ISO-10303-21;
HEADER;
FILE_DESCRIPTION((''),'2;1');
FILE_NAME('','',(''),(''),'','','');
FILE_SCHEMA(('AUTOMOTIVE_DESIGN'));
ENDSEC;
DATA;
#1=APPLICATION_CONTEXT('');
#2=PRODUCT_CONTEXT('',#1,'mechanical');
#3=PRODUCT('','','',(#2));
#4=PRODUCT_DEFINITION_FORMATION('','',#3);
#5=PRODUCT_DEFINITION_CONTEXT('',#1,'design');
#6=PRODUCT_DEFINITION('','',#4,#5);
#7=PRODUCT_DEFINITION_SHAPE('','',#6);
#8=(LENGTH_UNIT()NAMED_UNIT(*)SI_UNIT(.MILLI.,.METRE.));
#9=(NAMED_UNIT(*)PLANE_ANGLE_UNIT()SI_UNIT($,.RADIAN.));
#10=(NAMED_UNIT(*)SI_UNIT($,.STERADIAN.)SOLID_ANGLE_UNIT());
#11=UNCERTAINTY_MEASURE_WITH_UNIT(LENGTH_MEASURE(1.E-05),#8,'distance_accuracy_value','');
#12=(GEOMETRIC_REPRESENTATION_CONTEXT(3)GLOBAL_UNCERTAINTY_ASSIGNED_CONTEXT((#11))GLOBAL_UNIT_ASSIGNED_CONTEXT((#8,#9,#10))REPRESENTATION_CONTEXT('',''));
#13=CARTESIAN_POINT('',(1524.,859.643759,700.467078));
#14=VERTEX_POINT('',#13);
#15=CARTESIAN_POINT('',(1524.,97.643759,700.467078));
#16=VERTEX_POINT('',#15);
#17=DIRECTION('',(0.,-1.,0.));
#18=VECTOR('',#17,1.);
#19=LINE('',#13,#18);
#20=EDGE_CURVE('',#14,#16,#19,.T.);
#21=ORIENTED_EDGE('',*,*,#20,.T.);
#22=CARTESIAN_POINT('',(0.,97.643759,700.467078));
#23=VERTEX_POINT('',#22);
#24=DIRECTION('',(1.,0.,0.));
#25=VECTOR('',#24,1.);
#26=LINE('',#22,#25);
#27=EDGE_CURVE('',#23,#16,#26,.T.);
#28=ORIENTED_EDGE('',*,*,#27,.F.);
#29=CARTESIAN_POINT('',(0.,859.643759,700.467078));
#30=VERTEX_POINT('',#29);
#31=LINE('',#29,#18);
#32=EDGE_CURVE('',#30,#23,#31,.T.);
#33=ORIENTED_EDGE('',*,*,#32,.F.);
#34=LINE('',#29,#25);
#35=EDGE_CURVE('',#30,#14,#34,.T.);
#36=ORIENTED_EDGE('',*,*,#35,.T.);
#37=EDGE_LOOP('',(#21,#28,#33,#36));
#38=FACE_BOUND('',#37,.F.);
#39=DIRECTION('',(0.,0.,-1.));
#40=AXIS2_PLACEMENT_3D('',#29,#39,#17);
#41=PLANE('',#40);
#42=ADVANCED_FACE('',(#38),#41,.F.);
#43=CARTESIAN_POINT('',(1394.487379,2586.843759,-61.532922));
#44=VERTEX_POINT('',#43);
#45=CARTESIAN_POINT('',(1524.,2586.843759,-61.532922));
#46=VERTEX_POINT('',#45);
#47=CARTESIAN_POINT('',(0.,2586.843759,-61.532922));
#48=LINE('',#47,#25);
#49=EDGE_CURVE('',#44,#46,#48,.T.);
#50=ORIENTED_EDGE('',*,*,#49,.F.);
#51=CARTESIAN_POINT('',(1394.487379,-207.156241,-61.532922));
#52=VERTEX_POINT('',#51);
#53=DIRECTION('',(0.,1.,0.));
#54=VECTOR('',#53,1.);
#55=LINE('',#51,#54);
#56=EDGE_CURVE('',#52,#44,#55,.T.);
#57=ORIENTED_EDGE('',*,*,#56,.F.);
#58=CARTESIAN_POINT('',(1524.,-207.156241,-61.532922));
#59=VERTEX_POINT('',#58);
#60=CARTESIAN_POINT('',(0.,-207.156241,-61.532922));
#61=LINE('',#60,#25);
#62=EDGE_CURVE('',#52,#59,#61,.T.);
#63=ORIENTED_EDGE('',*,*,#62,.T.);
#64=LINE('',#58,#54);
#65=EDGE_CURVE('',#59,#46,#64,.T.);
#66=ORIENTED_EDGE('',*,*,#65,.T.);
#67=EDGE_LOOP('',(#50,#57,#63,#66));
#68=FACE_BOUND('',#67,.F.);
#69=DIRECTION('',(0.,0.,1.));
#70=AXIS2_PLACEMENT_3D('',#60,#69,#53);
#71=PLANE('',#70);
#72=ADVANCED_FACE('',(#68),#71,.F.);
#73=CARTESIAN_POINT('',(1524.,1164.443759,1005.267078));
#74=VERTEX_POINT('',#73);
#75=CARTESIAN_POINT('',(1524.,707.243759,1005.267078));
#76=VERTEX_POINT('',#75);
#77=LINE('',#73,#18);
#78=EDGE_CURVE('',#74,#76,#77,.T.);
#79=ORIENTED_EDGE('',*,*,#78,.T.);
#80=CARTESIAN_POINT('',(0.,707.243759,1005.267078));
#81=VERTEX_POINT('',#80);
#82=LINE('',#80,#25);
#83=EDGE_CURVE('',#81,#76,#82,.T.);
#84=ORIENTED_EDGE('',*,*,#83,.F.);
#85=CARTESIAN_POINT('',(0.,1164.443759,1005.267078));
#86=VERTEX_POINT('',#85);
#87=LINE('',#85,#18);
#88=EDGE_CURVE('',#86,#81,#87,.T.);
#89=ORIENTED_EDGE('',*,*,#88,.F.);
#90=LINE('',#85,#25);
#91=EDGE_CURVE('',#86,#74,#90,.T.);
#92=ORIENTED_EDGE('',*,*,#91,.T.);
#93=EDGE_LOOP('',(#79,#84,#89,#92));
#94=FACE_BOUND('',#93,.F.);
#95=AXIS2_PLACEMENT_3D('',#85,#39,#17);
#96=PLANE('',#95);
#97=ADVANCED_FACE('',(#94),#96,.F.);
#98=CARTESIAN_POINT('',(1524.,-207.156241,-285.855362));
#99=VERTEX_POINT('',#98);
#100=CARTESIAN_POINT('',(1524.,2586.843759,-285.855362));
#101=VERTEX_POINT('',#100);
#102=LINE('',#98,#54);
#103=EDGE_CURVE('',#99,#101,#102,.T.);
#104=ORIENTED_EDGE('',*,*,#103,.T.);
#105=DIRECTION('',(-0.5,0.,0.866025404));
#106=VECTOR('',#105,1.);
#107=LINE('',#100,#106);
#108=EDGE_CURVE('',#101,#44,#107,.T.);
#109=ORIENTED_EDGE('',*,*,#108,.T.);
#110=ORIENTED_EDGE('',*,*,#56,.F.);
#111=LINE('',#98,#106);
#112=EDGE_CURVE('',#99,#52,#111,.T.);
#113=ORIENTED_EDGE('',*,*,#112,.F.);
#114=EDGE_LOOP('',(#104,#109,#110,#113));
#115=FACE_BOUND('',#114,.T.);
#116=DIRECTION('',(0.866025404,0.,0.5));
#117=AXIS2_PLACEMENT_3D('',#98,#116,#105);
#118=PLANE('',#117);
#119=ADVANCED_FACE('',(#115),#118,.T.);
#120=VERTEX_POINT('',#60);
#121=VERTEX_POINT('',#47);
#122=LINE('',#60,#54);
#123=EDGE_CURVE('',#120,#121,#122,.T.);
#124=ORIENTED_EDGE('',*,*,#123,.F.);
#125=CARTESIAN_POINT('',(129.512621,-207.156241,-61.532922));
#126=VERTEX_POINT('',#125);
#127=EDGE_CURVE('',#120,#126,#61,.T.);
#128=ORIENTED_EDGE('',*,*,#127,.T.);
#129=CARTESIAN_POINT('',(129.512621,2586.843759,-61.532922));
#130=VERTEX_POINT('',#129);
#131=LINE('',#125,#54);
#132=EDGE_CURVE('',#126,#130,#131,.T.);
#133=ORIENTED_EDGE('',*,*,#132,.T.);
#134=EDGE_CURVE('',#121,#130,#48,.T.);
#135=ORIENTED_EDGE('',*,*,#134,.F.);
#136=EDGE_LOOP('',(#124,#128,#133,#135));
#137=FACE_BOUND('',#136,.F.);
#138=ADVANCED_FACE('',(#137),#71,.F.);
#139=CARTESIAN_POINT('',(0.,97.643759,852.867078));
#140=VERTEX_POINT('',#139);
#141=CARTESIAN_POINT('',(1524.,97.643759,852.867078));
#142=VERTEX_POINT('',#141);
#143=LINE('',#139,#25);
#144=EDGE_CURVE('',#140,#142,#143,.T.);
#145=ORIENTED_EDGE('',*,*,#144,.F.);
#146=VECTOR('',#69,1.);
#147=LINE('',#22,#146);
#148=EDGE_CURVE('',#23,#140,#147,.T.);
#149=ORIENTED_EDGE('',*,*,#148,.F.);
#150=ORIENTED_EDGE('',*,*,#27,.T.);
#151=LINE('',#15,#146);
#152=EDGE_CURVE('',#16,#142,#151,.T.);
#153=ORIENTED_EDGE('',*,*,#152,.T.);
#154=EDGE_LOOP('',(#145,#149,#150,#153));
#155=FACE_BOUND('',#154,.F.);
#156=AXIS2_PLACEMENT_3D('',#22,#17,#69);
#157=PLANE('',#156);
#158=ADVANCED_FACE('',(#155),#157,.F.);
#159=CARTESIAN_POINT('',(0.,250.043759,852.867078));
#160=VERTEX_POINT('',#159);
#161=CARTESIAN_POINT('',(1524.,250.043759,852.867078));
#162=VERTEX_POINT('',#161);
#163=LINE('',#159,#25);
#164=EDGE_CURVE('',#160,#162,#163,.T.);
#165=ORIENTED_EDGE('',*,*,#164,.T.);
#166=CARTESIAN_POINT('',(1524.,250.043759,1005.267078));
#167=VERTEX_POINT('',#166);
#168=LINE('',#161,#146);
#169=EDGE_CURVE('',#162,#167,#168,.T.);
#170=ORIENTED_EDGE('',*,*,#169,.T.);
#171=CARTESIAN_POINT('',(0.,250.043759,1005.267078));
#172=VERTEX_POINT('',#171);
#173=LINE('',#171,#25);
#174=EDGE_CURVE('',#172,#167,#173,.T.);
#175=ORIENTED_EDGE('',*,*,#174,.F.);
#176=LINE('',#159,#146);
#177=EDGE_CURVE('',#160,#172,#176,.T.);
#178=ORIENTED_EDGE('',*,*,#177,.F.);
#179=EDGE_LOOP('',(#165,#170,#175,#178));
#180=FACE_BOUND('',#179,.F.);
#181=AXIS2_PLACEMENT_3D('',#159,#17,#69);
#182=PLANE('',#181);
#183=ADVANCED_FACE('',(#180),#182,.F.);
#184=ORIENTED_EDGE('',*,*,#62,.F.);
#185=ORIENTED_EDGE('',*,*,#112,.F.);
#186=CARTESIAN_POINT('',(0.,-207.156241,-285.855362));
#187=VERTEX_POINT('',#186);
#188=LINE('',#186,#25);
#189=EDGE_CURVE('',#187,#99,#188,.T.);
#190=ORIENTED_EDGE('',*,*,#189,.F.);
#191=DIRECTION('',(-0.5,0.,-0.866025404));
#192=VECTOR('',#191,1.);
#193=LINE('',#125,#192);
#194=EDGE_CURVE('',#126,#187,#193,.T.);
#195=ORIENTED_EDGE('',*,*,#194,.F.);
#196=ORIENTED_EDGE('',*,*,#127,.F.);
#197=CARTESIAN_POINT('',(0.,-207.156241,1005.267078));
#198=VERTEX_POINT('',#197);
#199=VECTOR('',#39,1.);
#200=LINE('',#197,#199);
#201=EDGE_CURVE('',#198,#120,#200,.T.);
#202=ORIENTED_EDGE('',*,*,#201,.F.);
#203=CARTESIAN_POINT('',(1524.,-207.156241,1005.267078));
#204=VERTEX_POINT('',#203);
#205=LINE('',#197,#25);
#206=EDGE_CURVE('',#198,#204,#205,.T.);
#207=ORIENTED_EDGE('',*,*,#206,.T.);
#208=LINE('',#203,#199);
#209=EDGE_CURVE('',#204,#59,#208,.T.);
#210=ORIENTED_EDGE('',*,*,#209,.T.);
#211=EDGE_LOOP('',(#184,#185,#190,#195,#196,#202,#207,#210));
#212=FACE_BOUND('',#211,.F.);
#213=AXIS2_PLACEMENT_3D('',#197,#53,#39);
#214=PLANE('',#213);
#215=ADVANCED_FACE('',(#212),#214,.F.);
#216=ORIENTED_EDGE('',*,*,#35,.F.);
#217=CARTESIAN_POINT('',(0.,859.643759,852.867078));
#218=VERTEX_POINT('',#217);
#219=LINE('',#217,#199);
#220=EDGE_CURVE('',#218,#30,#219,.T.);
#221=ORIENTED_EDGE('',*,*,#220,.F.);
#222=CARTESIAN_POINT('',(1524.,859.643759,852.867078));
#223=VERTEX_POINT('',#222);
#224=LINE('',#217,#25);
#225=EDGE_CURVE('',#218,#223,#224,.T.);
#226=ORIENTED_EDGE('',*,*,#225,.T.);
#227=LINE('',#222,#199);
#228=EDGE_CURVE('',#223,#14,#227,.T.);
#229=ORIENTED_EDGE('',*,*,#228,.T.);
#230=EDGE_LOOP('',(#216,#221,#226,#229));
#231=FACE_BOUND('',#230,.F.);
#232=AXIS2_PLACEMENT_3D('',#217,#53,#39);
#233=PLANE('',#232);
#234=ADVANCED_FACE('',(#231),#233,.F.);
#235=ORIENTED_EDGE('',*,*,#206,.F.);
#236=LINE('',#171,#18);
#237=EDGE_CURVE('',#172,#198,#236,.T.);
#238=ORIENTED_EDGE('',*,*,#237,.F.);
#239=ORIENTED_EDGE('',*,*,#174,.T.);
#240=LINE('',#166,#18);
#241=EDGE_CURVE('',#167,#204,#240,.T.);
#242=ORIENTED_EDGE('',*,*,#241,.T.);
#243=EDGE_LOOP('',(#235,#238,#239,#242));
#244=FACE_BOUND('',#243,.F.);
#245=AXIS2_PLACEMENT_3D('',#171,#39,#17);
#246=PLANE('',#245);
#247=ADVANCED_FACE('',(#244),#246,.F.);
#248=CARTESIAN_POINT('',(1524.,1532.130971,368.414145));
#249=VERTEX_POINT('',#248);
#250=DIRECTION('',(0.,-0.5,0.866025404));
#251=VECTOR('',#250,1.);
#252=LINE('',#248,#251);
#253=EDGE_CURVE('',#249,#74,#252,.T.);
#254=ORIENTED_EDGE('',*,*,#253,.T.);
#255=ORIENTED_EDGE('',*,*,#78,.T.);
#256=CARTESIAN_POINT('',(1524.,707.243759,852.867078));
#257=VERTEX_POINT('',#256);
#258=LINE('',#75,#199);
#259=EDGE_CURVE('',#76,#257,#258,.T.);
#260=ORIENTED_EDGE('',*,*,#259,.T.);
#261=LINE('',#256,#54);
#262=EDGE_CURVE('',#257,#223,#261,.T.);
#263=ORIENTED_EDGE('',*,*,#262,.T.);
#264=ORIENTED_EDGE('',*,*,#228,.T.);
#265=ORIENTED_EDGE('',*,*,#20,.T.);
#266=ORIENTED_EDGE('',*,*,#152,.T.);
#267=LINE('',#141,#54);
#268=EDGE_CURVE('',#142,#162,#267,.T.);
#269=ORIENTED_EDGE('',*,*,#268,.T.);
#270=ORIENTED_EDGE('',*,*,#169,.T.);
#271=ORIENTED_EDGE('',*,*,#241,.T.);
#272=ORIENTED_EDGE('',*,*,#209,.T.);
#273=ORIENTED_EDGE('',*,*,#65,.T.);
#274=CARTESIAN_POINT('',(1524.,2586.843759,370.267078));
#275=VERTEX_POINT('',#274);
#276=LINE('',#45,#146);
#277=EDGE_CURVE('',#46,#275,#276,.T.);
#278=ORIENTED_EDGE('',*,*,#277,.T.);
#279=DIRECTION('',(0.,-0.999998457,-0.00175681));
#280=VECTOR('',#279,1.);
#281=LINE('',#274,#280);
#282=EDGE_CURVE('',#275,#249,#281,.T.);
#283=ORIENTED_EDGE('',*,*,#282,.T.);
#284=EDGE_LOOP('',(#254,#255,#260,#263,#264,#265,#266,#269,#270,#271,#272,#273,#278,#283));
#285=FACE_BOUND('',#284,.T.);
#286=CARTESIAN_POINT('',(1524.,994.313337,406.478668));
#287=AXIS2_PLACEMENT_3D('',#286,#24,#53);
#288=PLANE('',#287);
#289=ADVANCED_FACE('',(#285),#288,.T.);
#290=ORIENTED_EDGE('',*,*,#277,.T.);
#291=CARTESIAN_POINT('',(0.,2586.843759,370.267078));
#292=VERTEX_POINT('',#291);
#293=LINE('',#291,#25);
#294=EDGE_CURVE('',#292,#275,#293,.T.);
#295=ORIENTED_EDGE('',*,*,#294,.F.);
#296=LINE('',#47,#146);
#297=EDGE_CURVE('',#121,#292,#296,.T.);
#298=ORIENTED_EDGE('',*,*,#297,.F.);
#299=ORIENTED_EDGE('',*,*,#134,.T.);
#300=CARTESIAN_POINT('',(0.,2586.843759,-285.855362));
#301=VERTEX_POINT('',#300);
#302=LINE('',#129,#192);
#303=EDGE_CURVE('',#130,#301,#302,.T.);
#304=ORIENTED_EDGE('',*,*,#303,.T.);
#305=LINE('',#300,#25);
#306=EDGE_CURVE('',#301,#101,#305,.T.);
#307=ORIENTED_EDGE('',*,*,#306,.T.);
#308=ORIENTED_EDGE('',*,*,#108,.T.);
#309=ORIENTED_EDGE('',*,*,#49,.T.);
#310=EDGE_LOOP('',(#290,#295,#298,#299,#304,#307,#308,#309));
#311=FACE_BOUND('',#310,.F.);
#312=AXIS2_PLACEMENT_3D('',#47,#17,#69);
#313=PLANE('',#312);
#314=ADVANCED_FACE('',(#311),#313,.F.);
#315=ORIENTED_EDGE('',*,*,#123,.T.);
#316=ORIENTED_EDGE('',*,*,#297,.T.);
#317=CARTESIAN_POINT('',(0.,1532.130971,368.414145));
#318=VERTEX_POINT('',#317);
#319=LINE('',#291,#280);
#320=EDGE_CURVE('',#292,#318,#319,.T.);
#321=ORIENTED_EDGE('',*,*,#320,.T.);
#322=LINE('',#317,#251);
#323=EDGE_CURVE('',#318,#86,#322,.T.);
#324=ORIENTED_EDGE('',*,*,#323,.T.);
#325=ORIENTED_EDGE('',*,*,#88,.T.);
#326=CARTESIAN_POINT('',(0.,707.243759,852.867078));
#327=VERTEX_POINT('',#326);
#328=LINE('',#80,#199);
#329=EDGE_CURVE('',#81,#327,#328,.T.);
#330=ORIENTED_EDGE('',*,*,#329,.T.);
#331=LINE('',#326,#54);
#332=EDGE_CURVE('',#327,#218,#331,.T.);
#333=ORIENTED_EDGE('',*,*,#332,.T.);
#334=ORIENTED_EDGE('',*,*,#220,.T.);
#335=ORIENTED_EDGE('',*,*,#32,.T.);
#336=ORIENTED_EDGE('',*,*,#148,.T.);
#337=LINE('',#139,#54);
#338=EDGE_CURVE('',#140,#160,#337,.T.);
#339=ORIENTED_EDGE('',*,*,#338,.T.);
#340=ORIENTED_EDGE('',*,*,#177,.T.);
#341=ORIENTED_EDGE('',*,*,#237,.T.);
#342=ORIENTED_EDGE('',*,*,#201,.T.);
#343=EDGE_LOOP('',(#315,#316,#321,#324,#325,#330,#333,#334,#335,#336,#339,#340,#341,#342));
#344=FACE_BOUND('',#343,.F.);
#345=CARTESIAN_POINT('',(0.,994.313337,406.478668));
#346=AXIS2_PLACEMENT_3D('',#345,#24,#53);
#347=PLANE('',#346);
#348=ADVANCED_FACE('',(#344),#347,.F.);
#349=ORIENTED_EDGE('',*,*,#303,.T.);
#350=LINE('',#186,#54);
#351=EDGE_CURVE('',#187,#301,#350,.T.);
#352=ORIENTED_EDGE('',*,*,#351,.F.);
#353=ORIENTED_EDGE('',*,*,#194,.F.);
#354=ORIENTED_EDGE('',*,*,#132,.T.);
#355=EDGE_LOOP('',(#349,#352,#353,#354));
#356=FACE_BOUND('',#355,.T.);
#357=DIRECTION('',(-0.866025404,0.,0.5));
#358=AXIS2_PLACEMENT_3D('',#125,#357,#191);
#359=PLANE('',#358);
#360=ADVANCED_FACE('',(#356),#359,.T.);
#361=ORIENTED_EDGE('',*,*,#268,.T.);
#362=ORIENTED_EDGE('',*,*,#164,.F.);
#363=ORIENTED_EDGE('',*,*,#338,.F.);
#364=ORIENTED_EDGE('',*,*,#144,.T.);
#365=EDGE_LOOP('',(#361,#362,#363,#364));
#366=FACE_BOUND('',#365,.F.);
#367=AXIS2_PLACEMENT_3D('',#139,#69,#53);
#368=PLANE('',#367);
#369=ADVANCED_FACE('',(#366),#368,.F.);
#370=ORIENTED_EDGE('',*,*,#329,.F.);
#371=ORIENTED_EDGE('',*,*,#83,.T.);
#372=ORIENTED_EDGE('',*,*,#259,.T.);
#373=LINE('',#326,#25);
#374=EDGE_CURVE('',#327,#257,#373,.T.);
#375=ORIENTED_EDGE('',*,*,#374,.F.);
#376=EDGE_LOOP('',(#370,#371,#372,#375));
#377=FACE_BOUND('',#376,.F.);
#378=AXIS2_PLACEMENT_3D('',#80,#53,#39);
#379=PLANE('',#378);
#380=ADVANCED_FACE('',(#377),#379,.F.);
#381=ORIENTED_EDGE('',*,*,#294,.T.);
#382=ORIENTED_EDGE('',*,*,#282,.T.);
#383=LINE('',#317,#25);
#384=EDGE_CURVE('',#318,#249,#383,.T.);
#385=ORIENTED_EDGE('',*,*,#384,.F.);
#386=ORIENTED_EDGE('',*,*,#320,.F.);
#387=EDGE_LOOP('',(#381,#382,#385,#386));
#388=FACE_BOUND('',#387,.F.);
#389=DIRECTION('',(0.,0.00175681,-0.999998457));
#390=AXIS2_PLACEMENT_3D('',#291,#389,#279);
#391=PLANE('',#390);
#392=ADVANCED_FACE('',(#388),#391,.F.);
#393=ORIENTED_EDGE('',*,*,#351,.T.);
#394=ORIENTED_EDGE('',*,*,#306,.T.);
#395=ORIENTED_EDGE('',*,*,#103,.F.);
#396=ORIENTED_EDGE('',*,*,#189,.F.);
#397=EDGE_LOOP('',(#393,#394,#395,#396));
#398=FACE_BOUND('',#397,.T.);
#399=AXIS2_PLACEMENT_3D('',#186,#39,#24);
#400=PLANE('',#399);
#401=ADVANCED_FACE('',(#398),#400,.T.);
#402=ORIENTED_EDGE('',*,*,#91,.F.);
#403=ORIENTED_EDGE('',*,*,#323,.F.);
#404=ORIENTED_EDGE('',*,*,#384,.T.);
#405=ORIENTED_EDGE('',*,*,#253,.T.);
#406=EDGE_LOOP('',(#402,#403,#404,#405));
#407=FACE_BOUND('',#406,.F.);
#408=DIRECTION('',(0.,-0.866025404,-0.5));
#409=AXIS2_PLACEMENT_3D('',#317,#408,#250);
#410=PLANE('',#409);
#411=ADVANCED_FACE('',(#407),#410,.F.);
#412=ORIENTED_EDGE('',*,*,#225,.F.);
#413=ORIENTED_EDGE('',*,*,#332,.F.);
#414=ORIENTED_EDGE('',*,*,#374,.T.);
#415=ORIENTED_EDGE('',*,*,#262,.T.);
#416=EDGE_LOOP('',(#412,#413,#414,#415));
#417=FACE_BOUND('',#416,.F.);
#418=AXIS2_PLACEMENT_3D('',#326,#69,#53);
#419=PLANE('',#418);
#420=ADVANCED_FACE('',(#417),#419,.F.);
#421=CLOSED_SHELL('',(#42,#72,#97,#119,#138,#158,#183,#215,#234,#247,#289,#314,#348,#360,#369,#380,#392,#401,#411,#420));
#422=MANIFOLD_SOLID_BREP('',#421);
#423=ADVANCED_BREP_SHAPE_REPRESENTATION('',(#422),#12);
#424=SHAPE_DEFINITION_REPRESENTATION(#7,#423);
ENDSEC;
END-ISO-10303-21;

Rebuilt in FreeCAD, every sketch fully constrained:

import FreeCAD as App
import Part
import Sketcher

V = App.Vector
Q = App.Units.Quantity

doc = App.newDocument("Part")
params = doc.addObject("Spreadsheet::Sheet", "Params")
for row, (alias, value) in enumerate([
    ("sketch1_width", "110 in"),
    ("sketch1_width2", "18 in"),
    ("sketch1_width3", "6 in"),
    ("sketch1_width4", "30 in"),
    ("sketch1_height", "17 in"),
    ("pad1_length", "60 in"),
    ("sketch2_width", "60 in"),
    ("pad2_length", "110 in"),
], start=1):
    params.set(f"A{row}", alias)
    params.set(f"B{row}", "=" + value)
    params.setAlias(f"B{row}", alias)

body = doc.addObject("PartDesign::Body", "Body")

sketch1 = body.newObject("Sketcher::SketchObject", "Sketch")
sketch1.AttachmentSupport = (doc.getObject("YZ_Plane"), [""])
sketch1.MapMode = "FlatFace"
sketch1.addGeometry(Part.LineSegment(V(-207, -62, 0), V(2587, -62, 0)), False)
sketch1.addGeometry(Part.LineSegment(V(2587, -62, 0), V(2587, 370, 0)), False)
sketch1.addGeometry(Part.LineSegment(V(2587, 370, 0), V(1532, 368, 0)), False)
sketch1.addGeometry(Part.LineSegment(V(1532, 368, 0), V(1164, 1005, 0)), False)
sketch1.addGeometry(Part.LineSegment(V(1164, 1005, 0), V(707, 1005, 0)), False)
sketch1.addGeometry(Part.LineSegment(V(707, 1005, 0), V(707, 853, 0)), False)
sketch1.addGeometry(Part.LineSegment(V(707, 853, 0), V(860, 853, 0)), False)
sketch1.addGeometry(Part.LineSegment(V(860, 853, 0), V(860, 700, 0)), False)
sketch1.addGeometry(Part.LineSegment(V(860, 700, 0), V(98, 700, 0)), False)
sketch1.addGeometry(Part.LineSegment(V(98, 700, 0), V(98, 853, 0)), False)
sketch1.addGeometry(Part.LineSegment(V(98, 853, 0), V(250, 853, 0)), False)
sketch1.addGeometry(Part.LineSegment(V(250, 853, 0), V(250, 1005, 0)), False)
sketch1.addGeometry(Part.LineSegment(V(250, 1005, 0), V(-207, 1005, 0)), False)
sketch1.addGeometry(Part.LineSegment(V(-207, 1005, 0), V(-207, -62, 0)), False)
sketch1.addConstraint(Sketcher.Constraint("Coincident", 0, 2, 1, 1))
sketch1.addConstraint(Sketcher.Constraint("Coincident", 1, 2, 2, 1))
sketch1.addConstraint(Sketcher.Constraint("Coincident", 2, 2, 3, 1))
sketch1.addConstraint(Sketcher.Constraint("Coincident", 3, 2, 4, 1))
sketch1.addConstraint(Sketcher.Constraint("Coincident", 4, 2, 5, 1))
sketch1.addConstraint(Sketcher.Constraint("Coincident", 5, 2, 6, 1))
sketch1.addConstraint(Sketcher.Constraint("Coincident", 6, 2, 7, 1))
sketch1.addConstraint(Sketcher.Constraint("Coincident", 7, 2, 8, 1))
sketch1.addConstraint(Sketcher.Constraint("Coincident", 8, 2, 9, 1))
sketch1.addConstraint(Sketcher.Constraint("Coincident", 9, 2, 10, 1))
sketch1.addConstraint(Sketcher.Constraint("Coincident", 10, 2, 11, 1))
sketch1.addConstraint(Sketcher.Constraint("Coincident", 11, 2, 12, 1))
sketch1.addConstraint(Sketcher.Constraint("Coincident", 12, 2, 13, 1))
sketch1.addConstraint(Sketcher.Constraint("Coincident", 13, 2, 0, 1))
sketch1.addConstraint(Sketcher.Constraint("Horizontal", 0))
sketch1.addConstraint(Sketcher.Constraint("Vertical", 1))
sketch1.addConstraint(Sketcher.Constraint("Horizontal", 4))
sketch1.addConstraint(Sketcher.Constraint("Vertical", 5))
sketch1.addConstraint(Sketcher.Constraint("Horizontal", 6))
sketch1.addConstraint(Sketcher.Constraint("Vertical", 7))
sketch1.addConstraint(Sketcher.Constraint("Horizontal", 8))
sketch1.addConstraint(Sketcher.Constraint("Vertical", 9))
sketch1.addConstraint(Sketcher.Constraint("Horizontal", 10))
sketch1.addConstraint(Sketcher.Constraint("Vertical", 11))
sketch1.addConstraint(Sketcher.Constraint("Horizontal", 12))
sketch1.addConstraint(Sketcher.Constraint("Vertical", 13))
sketch1.addConstraint(Sketcher.Constraint("Horizontal", 6, 2, 9, 2))
sketch1.addConstraint(Sketcher.Constraint("Horizontal", 4, 2, 11, 2))
sketch1.addConstraint(Sketcher.Constraint("Equal", 6, 10))
sketch1.addConstraint(Sketcher.Constraint("Equal", 4, 12))
sketch1.addConstraint(Sketcher.Constraint("Equal", 10, 5))
sketch1.addConstraint(Sketcher.Constraint("Equal", 5, 7))
sketch1.addConstraint(Sketcher.Constraint("DistanceX", 0, 1, 0, 2, Q("110 in")))
sketch1.addConstraint(Sketcher.Constraint("DistanceX", 4, 2, 4, 1, Q("18 in")))
sketch1.addConstraint(Sketcher.Constraint("DistanceX", 6, 1, 6, 2, Q("6 in")))
sketch1.addConstraint(Sketcher.Constraint("DistanceX", 8, 2, 8, 1, Q("30 in")))
sketch1.addConstraint(Sketcher.Constraint("DistanceY", 1, 1, 1, 2, Q("17 in")))
sketch1.addConstraint(Sketcher.Constraint("DistanceY", 13, 2, 13, 1, Q("42 in")))
sketch1.addConstraint(Sketcher.Constraint("Angle", 3, Q("120 deg")))
sketch1.addConstraint(Sketcher.Constraint("DistanceX", -1, 1, 0, 2, 2586.843759))
sketch1.addConstraint(Sketcher.Constraint("DistanceY", -1, 1, 1, 2, 370.267078))
sketch1.addConstraint(Sketcher.Constraint("DistanceX", -1, 1, 2, 2, 1532.130971))
sketch1.setExpression("Constraints[32]", "Params.sketch1_width")
sketch1.setExpression("Constraints[33]", "Params.sketch1_width2")
sketch1.setExpression("Constraints[34]", "Params.sketch1_width3")
sketch1.setExpression("Constraints[35]", "Params.sketch1_width4")
sketch1.setExpression("Constraints[36]", "Params.sketch1_height")
pad1 = body.newObject("PartDesign::Pad", "Pad")
pad1.Profile = sketch1
pad1.setExpression("Length", "Params.pad1_length")

sketch2 = body.newObject("Sketcher::SketchObject", "Sketch001")
sketch2.AttachmentSupport = (doc.getObject("XZ_Plane"), [""])
sketch2.MapMode = "FlatFace"
sketch2.AttachmentOffset = App.Placement(V(0, 0, 207.156241), App.Rotation())
sketch2.addGeometry(Part.LineSegment(V(0, -286, 0), V(1524, -286, 0)), False)
sketch2.addGeometry(Part.LineSegment(V(1524, -286, 0), V(1394, -62, 0)), False)
sketch2.addGeometry(Part.LineSegment(V(1394, -62, 0), V(130, -62, 0)), False)
sketch2.addGeometry(Part.LineSegment(V(130, -62, 0), V(0, -286, 0)), False)
sketch2.addConstraint(Sketcher.Constraint("Coincident", 0, 2, 1, 1))
sketch2.addConstraint(Sketcher.Constraint("Coincident", 1, 2, 2, 1))
sketch2.addConstraint(Sketcher.Constraint("Coincident", 2, 2, 3, 1))
sketch2.addConstraint(Sketcher.Constraint("Coincident", 3, 2, 0, 1))
sketch2.addConstraint(Sketcher.Constraint("Horizontal", 0))
sketch2.addConstraint(Sketcher.Constraint("Horizontal", 2))
sketch2.addConstraint(Sketcher.Constraint("PointOnObject", 3, 2, -2))
sketch2.addConstraint(Sketcher.Constraint("Equal", 1, 3))
sketch2.addConstraint(Sketcher.Constraint("DistanceX", 0, 1, 0, 2, Q("60 in")))
sketch2.addConstraint(Sketcher.Constraint("Angle", 1, Q("120 deg")))
sketch2.addConstraint(Sketcher.Constraint("DistanceX", 2, 2, 2, 1, 1264.974758))
sketch2.addConstraint(Sketcher.Constraint("DistanceY", 0, 2, -1, 1, 285.855362))
sketch2.setExpression("Constraints[8]", "Params.sketch2_width")
pad2 = body.newObject("PartDesign::Pad", "Pad001")
pad2.Profile = sketch2
pad2.setExpression("Length", "Params.pad2_length")
pad2.Reversed = True

doc.recompute()
